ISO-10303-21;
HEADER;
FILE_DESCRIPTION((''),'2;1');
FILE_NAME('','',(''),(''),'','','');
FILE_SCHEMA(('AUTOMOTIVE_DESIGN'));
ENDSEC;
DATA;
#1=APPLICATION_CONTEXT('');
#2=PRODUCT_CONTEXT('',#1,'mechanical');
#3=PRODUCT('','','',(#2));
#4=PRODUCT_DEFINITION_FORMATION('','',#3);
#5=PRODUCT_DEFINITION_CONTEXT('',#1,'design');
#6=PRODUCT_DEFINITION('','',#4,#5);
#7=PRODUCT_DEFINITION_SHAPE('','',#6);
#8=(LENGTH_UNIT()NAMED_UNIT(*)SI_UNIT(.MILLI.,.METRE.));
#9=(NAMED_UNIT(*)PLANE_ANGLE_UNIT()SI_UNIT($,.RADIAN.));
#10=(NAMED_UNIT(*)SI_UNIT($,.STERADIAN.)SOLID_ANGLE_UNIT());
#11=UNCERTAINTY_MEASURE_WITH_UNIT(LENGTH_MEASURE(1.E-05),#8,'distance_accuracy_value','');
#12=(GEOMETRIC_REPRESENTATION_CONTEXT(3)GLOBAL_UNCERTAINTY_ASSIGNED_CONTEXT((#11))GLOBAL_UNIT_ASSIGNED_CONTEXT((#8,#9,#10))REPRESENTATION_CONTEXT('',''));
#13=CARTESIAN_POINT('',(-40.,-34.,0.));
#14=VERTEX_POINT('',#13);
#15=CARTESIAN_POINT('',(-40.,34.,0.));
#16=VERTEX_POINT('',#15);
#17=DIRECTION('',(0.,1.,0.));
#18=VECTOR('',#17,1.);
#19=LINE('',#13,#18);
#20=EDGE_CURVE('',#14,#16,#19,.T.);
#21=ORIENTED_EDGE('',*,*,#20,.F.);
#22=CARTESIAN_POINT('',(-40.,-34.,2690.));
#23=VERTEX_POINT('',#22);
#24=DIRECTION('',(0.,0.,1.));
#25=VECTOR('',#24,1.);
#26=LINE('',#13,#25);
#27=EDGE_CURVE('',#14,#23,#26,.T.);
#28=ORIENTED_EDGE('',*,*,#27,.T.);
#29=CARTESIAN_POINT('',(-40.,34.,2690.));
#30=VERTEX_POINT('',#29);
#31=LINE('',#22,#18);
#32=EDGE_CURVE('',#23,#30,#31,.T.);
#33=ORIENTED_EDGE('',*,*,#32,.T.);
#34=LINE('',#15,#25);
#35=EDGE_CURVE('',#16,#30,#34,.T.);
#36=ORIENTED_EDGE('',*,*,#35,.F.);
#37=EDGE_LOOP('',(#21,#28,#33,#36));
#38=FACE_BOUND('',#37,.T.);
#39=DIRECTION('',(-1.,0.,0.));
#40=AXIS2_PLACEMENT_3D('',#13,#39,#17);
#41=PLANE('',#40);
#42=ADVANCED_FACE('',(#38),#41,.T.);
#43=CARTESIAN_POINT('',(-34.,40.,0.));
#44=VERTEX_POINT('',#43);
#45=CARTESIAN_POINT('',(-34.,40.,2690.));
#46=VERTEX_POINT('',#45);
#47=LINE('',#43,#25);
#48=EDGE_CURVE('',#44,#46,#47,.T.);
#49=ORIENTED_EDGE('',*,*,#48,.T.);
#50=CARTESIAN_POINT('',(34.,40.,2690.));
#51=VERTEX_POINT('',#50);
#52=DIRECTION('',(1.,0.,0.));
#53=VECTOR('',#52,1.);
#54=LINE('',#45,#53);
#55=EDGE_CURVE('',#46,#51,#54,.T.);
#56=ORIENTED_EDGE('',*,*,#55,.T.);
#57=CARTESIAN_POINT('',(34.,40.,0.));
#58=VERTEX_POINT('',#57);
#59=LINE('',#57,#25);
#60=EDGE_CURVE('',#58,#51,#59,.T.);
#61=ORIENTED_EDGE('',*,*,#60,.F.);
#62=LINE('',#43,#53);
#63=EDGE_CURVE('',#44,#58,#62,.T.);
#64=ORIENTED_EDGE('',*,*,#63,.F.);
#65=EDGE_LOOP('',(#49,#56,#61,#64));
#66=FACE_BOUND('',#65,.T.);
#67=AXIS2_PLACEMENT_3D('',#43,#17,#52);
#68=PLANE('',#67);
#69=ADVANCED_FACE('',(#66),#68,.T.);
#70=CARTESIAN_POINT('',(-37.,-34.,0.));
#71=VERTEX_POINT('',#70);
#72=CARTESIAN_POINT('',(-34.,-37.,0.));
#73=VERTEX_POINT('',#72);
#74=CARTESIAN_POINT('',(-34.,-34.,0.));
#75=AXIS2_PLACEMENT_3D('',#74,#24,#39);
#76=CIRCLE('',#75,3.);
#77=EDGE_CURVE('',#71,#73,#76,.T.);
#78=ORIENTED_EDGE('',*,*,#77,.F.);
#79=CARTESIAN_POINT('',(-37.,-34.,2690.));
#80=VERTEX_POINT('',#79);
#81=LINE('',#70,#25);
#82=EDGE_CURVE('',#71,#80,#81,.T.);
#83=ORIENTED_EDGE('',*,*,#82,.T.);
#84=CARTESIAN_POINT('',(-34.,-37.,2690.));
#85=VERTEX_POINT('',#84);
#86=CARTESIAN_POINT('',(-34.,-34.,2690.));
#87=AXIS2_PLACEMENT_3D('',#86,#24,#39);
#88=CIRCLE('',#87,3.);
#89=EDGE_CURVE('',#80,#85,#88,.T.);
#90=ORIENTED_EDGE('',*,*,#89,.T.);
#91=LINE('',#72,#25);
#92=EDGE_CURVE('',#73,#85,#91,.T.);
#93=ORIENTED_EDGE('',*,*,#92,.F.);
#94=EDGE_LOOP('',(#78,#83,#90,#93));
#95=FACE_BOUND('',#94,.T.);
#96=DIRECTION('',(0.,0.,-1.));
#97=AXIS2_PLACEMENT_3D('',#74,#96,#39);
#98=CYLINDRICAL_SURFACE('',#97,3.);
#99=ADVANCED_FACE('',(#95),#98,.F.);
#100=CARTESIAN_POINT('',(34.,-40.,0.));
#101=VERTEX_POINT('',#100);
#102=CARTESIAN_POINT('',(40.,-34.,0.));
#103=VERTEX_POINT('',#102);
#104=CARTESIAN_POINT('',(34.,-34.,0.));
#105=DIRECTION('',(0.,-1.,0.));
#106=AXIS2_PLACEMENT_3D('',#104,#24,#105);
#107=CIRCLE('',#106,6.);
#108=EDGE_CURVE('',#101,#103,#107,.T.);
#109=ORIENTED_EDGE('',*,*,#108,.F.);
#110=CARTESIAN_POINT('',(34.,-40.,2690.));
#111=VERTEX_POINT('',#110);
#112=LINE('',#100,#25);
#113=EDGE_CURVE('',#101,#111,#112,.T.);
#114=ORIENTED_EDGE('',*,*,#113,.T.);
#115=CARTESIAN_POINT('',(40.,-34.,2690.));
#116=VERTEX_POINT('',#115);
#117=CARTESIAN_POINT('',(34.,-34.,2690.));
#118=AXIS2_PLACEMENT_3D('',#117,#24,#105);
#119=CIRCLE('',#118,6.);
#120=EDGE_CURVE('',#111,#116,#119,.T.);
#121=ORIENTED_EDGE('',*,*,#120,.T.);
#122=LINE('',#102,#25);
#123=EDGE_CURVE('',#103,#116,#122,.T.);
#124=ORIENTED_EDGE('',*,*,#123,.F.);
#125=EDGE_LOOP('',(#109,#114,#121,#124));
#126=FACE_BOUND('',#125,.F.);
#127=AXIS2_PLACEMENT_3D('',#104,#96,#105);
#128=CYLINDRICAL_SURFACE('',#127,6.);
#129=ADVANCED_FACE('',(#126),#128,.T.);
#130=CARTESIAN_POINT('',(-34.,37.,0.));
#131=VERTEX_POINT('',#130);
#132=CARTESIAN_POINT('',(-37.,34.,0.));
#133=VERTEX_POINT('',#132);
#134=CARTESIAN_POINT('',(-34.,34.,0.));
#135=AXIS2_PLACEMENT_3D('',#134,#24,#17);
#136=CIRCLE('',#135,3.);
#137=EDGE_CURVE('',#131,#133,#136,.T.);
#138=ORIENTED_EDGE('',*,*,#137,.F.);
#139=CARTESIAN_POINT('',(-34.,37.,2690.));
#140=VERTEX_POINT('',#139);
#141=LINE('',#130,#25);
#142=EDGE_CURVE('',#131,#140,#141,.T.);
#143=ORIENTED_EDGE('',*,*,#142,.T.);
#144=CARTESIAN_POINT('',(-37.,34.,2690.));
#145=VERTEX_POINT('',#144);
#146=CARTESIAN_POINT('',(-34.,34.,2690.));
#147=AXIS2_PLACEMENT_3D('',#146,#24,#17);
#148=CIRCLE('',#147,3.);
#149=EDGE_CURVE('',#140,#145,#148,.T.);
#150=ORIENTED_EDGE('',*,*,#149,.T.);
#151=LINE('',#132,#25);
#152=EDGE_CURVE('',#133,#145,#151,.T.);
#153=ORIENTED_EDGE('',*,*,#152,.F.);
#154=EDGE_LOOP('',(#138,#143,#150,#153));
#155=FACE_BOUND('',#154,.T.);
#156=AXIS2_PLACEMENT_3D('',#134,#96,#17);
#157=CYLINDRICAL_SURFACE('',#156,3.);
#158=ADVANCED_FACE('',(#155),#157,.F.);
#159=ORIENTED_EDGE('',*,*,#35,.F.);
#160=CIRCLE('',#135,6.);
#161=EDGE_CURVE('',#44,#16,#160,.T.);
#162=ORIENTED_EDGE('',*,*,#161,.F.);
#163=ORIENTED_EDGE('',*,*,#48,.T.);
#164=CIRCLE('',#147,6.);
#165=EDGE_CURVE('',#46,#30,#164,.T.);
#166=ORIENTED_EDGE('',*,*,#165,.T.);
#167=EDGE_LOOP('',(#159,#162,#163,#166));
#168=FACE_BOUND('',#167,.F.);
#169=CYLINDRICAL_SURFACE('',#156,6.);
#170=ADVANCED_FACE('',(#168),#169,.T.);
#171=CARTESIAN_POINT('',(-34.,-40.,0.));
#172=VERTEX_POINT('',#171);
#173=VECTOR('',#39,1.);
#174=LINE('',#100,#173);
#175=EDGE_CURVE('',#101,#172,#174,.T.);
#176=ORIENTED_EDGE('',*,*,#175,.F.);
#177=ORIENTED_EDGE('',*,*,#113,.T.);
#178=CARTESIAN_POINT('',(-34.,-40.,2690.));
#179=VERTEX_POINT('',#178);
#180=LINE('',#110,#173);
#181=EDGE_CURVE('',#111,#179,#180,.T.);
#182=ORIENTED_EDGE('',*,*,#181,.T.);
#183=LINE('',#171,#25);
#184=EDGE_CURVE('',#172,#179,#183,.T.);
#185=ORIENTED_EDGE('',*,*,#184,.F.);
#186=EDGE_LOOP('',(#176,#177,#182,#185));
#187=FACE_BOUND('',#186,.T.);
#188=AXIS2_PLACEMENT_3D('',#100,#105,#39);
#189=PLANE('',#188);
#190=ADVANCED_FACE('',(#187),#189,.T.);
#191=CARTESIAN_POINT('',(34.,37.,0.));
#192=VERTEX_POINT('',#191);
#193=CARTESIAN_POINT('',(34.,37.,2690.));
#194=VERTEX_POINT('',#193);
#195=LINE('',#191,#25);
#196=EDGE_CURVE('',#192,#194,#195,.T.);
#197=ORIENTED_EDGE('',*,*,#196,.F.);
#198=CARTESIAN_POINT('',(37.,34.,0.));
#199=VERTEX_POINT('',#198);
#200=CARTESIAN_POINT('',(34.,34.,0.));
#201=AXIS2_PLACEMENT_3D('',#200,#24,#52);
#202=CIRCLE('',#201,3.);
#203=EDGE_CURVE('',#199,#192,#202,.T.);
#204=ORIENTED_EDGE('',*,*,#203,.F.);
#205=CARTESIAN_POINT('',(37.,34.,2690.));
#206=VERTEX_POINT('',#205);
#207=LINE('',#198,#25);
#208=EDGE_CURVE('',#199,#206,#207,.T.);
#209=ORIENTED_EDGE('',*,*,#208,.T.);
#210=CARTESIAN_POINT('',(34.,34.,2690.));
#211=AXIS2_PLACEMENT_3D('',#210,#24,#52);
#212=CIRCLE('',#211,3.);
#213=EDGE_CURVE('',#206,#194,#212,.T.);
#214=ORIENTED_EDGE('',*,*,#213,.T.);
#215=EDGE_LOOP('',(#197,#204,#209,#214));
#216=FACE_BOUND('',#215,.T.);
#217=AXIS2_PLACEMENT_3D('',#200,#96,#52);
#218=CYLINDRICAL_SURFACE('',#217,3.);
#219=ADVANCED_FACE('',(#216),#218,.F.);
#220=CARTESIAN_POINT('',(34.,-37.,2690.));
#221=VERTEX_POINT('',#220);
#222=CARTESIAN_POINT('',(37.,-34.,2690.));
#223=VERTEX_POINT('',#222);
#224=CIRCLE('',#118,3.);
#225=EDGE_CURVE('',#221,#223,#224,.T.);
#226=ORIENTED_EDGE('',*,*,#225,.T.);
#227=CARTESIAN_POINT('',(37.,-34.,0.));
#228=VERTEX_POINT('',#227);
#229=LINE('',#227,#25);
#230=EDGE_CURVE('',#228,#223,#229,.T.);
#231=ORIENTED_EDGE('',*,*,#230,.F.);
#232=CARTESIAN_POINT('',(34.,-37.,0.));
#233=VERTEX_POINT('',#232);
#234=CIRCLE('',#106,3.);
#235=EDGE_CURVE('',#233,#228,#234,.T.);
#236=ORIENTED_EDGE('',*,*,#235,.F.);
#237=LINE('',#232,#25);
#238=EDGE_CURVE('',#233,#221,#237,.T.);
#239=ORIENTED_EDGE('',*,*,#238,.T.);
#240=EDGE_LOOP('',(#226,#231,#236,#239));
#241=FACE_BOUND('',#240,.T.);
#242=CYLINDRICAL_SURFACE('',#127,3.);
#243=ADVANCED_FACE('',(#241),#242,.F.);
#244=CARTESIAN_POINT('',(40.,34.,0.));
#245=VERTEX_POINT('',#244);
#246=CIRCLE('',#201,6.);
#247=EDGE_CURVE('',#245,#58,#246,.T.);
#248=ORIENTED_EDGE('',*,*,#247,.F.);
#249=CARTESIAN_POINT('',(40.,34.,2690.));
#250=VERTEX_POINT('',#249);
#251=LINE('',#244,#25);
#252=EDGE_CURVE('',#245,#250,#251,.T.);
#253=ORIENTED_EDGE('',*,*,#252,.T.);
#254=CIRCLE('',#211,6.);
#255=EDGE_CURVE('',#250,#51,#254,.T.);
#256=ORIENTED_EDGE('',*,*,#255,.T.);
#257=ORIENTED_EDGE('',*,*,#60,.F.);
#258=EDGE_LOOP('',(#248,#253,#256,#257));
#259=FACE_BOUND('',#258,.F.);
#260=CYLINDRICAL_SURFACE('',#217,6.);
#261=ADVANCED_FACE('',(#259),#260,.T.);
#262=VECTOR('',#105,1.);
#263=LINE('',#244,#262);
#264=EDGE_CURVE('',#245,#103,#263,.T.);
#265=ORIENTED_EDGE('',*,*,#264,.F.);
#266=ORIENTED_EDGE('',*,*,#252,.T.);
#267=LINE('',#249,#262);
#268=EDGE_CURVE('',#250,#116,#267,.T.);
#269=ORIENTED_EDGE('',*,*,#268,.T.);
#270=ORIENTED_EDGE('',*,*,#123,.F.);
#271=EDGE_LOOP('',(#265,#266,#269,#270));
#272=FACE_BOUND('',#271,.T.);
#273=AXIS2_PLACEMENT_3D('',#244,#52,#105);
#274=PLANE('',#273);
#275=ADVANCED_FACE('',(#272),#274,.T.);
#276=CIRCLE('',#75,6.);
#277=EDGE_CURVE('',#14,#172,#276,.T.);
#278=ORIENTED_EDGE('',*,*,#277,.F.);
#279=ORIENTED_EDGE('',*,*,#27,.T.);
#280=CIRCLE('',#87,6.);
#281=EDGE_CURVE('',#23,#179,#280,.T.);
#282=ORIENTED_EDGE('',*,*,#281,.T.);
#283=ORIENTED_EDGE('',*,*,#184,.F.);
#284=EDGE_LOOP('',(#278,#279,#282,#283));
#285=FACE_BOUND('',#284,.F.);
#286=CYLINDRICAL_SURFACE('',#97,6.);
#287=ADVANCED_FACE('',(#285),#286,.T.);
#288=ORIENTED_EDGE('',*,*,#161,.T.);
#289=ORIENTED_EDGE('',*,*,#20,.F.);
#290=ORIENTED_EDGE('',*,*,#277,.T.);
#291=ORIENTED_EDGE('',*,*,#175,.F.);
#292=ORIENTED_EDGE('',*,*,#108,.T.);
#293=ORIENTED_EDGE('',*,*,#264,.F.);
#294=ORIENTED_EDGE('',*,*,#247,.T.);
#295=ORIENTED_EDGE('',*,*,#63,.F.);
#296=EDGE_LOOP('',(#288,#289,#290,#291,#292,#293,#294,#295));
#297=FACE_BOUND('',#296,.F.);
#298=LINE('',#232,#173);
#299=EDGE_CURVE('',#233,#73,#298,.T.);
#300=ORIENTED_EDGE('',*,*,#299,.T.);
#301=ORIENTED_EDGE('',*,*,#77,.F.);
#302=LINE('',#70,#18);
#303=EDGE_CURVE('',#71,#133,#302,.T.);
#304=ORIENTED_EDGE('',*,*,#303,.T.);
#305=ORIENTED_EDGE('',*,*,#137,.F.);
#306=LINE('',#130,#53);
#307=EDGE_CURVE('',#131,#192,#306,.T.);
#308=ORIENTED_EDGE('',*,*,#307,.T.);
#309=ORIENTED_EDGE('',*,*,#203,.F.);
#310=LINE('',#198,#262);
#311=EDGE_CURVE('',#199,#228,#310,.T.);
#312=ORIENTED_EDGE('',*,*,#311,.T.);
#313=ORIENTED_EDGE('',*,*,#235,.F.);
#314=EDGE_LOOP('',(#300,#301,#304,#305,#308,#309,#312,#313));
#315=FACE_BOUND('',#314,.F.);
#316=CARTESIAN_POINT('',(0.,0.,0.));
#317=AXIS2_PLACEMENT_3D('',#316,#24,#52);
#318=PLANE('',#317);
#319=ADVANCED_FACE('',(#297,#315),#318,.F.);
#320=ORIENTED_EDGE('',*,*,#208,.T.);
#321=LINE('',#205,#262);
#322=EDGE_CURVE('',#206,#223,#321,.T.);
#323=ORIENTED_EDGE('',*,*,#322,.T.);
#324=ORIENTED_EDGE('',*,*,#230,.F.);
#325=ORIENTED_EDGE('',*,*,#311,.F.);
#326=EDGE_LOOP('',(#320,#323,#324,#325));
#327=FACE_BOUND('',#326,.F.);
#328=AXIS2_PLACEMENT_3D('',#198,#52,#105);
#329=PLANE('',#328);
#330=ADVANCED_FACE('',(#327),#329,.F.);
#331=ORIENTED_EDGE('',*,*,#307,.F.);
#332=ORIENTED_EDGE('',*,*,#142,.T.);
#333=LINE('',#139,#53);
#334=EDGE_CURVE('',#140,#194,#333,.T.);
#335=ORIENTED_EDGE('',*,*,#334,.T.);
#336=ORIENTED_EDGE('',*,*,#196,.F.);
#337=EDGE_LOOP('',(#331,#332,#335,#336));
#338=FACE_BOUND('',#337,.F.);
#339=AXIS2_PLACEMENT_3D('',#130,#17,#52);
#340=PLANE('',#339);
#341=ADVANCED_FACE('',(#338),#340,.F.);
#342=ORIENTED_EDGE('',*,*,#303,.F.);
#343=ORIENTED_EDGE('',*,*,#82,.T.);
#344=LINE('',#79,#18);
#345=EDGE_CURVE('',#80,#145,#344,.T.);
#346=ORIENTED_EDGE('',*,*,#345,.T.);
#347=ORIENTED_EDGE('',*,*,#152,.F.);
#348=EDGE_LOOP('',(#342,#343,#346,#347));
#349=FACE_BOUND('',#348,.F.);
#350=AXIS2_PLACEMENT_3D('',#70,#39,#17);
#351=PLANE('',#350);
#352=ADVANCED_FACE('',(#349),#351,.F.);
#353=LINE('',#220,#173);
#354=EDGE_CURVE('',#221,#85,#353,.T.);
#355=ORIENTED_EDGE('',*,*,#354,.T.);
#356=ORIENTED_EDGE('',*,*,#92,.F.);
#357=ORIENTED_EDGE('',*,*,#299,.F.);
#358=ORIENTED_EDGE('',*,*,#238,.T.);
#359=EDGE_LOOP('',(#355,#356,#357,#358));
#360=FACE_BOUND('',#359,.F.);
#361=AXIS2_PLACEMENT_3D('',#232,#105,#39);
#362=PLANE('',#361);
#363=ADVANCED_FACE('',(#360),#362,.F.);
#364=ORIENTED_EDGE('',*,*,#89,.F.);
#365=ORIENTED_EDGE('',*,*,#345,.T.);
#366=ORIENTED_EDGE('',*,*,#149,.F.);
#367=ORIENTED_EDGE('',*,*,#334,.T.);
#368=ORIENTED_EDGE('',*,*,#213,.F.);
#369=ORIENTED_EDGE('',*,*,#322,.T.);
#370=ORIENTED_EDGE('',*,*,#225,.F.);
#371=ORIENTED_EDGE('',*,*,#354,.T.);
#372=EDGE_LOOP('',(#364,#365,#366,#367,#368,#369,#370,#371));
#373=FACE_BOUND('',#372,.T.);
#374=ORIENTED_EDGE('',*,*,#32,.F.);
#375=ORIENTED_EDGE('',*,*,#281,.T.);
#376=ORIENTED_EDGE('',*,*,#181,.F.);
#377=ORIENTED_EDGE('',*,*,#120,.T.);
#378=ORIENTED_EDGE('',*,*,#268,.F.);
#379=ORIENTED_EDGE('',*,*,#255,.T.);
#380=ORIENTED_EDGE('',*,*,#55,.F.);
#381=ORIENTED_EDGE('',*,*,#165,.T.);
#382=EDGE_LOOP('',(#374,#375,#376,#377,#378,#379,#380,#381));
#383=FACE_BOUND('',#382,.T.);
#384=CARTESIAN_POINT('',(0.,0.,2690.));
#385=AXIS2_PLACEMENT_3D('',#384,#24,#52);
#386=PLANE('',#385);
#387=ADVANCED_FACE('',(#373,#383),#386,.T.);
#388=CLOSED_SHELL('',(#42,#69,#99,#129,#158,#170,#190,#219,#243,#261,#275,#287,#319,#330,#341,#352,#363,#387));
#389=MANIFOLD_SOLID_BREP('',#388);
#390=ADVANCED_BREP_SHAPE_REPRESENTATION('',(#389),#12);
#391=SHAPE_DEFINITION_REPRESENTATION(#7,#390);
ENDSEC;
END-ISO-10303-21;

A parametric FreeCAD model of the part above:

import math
import FreeCAD as App
import Part
import Sketcher
from FreeCAD import Vector

doc = App.newDocument("Part")
body = doc.addObject("PartDesign::Body", "Body")

# Sketch on XY plane
sketch1 = doc.addObject("Sketcher::SketchObject", "Sketch")
body.addObject(sketch1)
sketch1.AttachmentSupport = (doc.XY_Plane, [""])
sketch1.MapMode = "FlatFace"
sketch1.addGeometry([
    Part.LineSegment(Vector(-40, 34, 0), Vector(-40, -34, 0)),  # 0
    Part.ArcOfCircle(Part.Circle(Vector(-34, -34, 0), Vector(0, 0, 1), 6), math.radians(180), math.radians(270)),  # 1
    Part.LineSegment(Vector(-34, -40, 0), Vector(34, -40, 0)),  # 2
    Part.ArcOfCircle(Part.Circle(Vector(34, -34, 0), Vector(0, 0, 1), 6), math.radians(-90), math.radians(0)),  # 3
    Part.LineSegment(Vector(40, -34, 0), Vector(40, 34, 0)),  # 4
    Part.ArcOfCircle(Part.Circle(Vector(34, 34, 0), Vector(0, 0, 1), 6), math.radians(0), math.radians(90)),  # 5
    Part.LineSegment(Vector(34, 40, 0), Vector(-34, 40, 0)),  # 6
    Part.ArcOfCircle(Part.Circle(Vector(-34, 34, 0), Vector(0, 0, 1), 6), math.radians(90), math.radians(180)),  # 7
    Part.ArcOfCircle(Part.Circle(Vector(-34, 34, 0), Vector(0, 0, 1), 3), math.radians(90), math.radians(180)),  # 8
    Part.LineSegment(Vector(-34, 37, 0), Vector(34, 37, 0)),  # 9
    Part.ArcOfCircle(Part.Circle(Vector(34, 34, 0), Vector(0, 0, 1), 3), math.radians(0), math.radians(90)),  # 10
    Part.LineSegment(Vector(37, 34, 0), Vector(37, -34, 0)),  # 11
    Part.ArcOfCircle(Part.Circle(Vector(34, -34, 0), Vector(0, 0, 1), 3), math.radians(-90), math.radians(0)),  # 12
    Part.LineSegment(Vector(34, -37, 0), Vector(-34, -37, 0)),  # 13
    Part.ArcOfCircle(Part.Circle(Vector(-34, -34, 0), Vector(0, 0, 1), 3), math.radians(180), math.radians(270)),  # 14
    Part.LineSegment(Vector(-37, -34, 0), Vector(-37, 34, 0)),  # 15
], False)
sketch1.addConstraint([
    Sketcher.Constraint("Tangent", 0, 2, 1, 1),
    Sketcher.Constraint("Tangent", 1, 2, 2, 1),
    Sketcher.Constraint("Tangent", 2, 2, 3, 1),
    Sketcher.Constraint("Tangent", 3, 2, 4, 1),
    Sketcher.Constraint("Tangent", 4, 2, 5, 1),
    Sketcher.Constraint("Tangent", 5, 2, 6, 1),
    Sketcher.Constraint("Tangent", 6, 2, 7, 1),
    Sketcher.Constraint("Tangent", 7, 2, 0, 1),
    Sketcher.Constraint("Tangent", 8, 1, 9, 1),
    Sketcher.Constraint("Tangent", 9, 2, 10, 2),
    Sketcher.Constraint("Tangent", 10, 1, 11, 1),
    Sketcher.Constraint("Tangent", 11, 2, 12, 2),
    Sketcher.Constraint("Tangent", 12, 1, 13, 1),
    Sketcher.Constraint("Tangent", 13, 2, 14, 2),
    Sketcher.Constraint("Tangent", 14, 1, 15, 1),
    Sketcher.Constraint("Tangent", 15, 2, 8, 2),
    Sketcher.Constraint("Vertical", 0),
    Sketcher.Constraint("Horizontal", 2),
    Sketcher.Constraint("Vertical", 4),
    Sketcher.Constraint("Horizontal", 6),
    Sketcher.Constraint("Horizontal", 9),
    Sketcher.Constraint("Vertical", 11),
    Sketcher.Constraint("Horizontal", 13),
    Sketcher.Constraint("Vertical", 15),
    Sketcher.Constraint("Coincident", 8, 3, 7, 3),
    Sketcher.Constraint("Coincident", 10, 3, 5, 3),
    Sketcher.Constraint("Coincident", 12, 3, 3, 3),
    Sketcher.Constraint("Equal", 1, 3),
    Sketcher.Constraint("Equal", 3, 5),
    Sketcher.Constraint("Equal", 5, 7),
    Sketcher.Constraint("Equal", 12, 14),
    Sketcher.Constraint("Symmetric", 1, 3, 5, 3, -1, 1),
    Sketcher.Constraint("Equal", 13, 0),
    Sketcher.Constraint("Radius", 1, 6.0),
    Sketcher.Constraint("Radius", 8, 3.0),
    Sketcher.Constraint("DistanceX", 0, 2, -1, 1, 40.0),
])
pad1 = doc.addObject("PartDesign::Pad", "Pad")
body.addObject(pad1)
pad1.Profile = sketch1
pad1.Length = 2690

doc.recompute()
